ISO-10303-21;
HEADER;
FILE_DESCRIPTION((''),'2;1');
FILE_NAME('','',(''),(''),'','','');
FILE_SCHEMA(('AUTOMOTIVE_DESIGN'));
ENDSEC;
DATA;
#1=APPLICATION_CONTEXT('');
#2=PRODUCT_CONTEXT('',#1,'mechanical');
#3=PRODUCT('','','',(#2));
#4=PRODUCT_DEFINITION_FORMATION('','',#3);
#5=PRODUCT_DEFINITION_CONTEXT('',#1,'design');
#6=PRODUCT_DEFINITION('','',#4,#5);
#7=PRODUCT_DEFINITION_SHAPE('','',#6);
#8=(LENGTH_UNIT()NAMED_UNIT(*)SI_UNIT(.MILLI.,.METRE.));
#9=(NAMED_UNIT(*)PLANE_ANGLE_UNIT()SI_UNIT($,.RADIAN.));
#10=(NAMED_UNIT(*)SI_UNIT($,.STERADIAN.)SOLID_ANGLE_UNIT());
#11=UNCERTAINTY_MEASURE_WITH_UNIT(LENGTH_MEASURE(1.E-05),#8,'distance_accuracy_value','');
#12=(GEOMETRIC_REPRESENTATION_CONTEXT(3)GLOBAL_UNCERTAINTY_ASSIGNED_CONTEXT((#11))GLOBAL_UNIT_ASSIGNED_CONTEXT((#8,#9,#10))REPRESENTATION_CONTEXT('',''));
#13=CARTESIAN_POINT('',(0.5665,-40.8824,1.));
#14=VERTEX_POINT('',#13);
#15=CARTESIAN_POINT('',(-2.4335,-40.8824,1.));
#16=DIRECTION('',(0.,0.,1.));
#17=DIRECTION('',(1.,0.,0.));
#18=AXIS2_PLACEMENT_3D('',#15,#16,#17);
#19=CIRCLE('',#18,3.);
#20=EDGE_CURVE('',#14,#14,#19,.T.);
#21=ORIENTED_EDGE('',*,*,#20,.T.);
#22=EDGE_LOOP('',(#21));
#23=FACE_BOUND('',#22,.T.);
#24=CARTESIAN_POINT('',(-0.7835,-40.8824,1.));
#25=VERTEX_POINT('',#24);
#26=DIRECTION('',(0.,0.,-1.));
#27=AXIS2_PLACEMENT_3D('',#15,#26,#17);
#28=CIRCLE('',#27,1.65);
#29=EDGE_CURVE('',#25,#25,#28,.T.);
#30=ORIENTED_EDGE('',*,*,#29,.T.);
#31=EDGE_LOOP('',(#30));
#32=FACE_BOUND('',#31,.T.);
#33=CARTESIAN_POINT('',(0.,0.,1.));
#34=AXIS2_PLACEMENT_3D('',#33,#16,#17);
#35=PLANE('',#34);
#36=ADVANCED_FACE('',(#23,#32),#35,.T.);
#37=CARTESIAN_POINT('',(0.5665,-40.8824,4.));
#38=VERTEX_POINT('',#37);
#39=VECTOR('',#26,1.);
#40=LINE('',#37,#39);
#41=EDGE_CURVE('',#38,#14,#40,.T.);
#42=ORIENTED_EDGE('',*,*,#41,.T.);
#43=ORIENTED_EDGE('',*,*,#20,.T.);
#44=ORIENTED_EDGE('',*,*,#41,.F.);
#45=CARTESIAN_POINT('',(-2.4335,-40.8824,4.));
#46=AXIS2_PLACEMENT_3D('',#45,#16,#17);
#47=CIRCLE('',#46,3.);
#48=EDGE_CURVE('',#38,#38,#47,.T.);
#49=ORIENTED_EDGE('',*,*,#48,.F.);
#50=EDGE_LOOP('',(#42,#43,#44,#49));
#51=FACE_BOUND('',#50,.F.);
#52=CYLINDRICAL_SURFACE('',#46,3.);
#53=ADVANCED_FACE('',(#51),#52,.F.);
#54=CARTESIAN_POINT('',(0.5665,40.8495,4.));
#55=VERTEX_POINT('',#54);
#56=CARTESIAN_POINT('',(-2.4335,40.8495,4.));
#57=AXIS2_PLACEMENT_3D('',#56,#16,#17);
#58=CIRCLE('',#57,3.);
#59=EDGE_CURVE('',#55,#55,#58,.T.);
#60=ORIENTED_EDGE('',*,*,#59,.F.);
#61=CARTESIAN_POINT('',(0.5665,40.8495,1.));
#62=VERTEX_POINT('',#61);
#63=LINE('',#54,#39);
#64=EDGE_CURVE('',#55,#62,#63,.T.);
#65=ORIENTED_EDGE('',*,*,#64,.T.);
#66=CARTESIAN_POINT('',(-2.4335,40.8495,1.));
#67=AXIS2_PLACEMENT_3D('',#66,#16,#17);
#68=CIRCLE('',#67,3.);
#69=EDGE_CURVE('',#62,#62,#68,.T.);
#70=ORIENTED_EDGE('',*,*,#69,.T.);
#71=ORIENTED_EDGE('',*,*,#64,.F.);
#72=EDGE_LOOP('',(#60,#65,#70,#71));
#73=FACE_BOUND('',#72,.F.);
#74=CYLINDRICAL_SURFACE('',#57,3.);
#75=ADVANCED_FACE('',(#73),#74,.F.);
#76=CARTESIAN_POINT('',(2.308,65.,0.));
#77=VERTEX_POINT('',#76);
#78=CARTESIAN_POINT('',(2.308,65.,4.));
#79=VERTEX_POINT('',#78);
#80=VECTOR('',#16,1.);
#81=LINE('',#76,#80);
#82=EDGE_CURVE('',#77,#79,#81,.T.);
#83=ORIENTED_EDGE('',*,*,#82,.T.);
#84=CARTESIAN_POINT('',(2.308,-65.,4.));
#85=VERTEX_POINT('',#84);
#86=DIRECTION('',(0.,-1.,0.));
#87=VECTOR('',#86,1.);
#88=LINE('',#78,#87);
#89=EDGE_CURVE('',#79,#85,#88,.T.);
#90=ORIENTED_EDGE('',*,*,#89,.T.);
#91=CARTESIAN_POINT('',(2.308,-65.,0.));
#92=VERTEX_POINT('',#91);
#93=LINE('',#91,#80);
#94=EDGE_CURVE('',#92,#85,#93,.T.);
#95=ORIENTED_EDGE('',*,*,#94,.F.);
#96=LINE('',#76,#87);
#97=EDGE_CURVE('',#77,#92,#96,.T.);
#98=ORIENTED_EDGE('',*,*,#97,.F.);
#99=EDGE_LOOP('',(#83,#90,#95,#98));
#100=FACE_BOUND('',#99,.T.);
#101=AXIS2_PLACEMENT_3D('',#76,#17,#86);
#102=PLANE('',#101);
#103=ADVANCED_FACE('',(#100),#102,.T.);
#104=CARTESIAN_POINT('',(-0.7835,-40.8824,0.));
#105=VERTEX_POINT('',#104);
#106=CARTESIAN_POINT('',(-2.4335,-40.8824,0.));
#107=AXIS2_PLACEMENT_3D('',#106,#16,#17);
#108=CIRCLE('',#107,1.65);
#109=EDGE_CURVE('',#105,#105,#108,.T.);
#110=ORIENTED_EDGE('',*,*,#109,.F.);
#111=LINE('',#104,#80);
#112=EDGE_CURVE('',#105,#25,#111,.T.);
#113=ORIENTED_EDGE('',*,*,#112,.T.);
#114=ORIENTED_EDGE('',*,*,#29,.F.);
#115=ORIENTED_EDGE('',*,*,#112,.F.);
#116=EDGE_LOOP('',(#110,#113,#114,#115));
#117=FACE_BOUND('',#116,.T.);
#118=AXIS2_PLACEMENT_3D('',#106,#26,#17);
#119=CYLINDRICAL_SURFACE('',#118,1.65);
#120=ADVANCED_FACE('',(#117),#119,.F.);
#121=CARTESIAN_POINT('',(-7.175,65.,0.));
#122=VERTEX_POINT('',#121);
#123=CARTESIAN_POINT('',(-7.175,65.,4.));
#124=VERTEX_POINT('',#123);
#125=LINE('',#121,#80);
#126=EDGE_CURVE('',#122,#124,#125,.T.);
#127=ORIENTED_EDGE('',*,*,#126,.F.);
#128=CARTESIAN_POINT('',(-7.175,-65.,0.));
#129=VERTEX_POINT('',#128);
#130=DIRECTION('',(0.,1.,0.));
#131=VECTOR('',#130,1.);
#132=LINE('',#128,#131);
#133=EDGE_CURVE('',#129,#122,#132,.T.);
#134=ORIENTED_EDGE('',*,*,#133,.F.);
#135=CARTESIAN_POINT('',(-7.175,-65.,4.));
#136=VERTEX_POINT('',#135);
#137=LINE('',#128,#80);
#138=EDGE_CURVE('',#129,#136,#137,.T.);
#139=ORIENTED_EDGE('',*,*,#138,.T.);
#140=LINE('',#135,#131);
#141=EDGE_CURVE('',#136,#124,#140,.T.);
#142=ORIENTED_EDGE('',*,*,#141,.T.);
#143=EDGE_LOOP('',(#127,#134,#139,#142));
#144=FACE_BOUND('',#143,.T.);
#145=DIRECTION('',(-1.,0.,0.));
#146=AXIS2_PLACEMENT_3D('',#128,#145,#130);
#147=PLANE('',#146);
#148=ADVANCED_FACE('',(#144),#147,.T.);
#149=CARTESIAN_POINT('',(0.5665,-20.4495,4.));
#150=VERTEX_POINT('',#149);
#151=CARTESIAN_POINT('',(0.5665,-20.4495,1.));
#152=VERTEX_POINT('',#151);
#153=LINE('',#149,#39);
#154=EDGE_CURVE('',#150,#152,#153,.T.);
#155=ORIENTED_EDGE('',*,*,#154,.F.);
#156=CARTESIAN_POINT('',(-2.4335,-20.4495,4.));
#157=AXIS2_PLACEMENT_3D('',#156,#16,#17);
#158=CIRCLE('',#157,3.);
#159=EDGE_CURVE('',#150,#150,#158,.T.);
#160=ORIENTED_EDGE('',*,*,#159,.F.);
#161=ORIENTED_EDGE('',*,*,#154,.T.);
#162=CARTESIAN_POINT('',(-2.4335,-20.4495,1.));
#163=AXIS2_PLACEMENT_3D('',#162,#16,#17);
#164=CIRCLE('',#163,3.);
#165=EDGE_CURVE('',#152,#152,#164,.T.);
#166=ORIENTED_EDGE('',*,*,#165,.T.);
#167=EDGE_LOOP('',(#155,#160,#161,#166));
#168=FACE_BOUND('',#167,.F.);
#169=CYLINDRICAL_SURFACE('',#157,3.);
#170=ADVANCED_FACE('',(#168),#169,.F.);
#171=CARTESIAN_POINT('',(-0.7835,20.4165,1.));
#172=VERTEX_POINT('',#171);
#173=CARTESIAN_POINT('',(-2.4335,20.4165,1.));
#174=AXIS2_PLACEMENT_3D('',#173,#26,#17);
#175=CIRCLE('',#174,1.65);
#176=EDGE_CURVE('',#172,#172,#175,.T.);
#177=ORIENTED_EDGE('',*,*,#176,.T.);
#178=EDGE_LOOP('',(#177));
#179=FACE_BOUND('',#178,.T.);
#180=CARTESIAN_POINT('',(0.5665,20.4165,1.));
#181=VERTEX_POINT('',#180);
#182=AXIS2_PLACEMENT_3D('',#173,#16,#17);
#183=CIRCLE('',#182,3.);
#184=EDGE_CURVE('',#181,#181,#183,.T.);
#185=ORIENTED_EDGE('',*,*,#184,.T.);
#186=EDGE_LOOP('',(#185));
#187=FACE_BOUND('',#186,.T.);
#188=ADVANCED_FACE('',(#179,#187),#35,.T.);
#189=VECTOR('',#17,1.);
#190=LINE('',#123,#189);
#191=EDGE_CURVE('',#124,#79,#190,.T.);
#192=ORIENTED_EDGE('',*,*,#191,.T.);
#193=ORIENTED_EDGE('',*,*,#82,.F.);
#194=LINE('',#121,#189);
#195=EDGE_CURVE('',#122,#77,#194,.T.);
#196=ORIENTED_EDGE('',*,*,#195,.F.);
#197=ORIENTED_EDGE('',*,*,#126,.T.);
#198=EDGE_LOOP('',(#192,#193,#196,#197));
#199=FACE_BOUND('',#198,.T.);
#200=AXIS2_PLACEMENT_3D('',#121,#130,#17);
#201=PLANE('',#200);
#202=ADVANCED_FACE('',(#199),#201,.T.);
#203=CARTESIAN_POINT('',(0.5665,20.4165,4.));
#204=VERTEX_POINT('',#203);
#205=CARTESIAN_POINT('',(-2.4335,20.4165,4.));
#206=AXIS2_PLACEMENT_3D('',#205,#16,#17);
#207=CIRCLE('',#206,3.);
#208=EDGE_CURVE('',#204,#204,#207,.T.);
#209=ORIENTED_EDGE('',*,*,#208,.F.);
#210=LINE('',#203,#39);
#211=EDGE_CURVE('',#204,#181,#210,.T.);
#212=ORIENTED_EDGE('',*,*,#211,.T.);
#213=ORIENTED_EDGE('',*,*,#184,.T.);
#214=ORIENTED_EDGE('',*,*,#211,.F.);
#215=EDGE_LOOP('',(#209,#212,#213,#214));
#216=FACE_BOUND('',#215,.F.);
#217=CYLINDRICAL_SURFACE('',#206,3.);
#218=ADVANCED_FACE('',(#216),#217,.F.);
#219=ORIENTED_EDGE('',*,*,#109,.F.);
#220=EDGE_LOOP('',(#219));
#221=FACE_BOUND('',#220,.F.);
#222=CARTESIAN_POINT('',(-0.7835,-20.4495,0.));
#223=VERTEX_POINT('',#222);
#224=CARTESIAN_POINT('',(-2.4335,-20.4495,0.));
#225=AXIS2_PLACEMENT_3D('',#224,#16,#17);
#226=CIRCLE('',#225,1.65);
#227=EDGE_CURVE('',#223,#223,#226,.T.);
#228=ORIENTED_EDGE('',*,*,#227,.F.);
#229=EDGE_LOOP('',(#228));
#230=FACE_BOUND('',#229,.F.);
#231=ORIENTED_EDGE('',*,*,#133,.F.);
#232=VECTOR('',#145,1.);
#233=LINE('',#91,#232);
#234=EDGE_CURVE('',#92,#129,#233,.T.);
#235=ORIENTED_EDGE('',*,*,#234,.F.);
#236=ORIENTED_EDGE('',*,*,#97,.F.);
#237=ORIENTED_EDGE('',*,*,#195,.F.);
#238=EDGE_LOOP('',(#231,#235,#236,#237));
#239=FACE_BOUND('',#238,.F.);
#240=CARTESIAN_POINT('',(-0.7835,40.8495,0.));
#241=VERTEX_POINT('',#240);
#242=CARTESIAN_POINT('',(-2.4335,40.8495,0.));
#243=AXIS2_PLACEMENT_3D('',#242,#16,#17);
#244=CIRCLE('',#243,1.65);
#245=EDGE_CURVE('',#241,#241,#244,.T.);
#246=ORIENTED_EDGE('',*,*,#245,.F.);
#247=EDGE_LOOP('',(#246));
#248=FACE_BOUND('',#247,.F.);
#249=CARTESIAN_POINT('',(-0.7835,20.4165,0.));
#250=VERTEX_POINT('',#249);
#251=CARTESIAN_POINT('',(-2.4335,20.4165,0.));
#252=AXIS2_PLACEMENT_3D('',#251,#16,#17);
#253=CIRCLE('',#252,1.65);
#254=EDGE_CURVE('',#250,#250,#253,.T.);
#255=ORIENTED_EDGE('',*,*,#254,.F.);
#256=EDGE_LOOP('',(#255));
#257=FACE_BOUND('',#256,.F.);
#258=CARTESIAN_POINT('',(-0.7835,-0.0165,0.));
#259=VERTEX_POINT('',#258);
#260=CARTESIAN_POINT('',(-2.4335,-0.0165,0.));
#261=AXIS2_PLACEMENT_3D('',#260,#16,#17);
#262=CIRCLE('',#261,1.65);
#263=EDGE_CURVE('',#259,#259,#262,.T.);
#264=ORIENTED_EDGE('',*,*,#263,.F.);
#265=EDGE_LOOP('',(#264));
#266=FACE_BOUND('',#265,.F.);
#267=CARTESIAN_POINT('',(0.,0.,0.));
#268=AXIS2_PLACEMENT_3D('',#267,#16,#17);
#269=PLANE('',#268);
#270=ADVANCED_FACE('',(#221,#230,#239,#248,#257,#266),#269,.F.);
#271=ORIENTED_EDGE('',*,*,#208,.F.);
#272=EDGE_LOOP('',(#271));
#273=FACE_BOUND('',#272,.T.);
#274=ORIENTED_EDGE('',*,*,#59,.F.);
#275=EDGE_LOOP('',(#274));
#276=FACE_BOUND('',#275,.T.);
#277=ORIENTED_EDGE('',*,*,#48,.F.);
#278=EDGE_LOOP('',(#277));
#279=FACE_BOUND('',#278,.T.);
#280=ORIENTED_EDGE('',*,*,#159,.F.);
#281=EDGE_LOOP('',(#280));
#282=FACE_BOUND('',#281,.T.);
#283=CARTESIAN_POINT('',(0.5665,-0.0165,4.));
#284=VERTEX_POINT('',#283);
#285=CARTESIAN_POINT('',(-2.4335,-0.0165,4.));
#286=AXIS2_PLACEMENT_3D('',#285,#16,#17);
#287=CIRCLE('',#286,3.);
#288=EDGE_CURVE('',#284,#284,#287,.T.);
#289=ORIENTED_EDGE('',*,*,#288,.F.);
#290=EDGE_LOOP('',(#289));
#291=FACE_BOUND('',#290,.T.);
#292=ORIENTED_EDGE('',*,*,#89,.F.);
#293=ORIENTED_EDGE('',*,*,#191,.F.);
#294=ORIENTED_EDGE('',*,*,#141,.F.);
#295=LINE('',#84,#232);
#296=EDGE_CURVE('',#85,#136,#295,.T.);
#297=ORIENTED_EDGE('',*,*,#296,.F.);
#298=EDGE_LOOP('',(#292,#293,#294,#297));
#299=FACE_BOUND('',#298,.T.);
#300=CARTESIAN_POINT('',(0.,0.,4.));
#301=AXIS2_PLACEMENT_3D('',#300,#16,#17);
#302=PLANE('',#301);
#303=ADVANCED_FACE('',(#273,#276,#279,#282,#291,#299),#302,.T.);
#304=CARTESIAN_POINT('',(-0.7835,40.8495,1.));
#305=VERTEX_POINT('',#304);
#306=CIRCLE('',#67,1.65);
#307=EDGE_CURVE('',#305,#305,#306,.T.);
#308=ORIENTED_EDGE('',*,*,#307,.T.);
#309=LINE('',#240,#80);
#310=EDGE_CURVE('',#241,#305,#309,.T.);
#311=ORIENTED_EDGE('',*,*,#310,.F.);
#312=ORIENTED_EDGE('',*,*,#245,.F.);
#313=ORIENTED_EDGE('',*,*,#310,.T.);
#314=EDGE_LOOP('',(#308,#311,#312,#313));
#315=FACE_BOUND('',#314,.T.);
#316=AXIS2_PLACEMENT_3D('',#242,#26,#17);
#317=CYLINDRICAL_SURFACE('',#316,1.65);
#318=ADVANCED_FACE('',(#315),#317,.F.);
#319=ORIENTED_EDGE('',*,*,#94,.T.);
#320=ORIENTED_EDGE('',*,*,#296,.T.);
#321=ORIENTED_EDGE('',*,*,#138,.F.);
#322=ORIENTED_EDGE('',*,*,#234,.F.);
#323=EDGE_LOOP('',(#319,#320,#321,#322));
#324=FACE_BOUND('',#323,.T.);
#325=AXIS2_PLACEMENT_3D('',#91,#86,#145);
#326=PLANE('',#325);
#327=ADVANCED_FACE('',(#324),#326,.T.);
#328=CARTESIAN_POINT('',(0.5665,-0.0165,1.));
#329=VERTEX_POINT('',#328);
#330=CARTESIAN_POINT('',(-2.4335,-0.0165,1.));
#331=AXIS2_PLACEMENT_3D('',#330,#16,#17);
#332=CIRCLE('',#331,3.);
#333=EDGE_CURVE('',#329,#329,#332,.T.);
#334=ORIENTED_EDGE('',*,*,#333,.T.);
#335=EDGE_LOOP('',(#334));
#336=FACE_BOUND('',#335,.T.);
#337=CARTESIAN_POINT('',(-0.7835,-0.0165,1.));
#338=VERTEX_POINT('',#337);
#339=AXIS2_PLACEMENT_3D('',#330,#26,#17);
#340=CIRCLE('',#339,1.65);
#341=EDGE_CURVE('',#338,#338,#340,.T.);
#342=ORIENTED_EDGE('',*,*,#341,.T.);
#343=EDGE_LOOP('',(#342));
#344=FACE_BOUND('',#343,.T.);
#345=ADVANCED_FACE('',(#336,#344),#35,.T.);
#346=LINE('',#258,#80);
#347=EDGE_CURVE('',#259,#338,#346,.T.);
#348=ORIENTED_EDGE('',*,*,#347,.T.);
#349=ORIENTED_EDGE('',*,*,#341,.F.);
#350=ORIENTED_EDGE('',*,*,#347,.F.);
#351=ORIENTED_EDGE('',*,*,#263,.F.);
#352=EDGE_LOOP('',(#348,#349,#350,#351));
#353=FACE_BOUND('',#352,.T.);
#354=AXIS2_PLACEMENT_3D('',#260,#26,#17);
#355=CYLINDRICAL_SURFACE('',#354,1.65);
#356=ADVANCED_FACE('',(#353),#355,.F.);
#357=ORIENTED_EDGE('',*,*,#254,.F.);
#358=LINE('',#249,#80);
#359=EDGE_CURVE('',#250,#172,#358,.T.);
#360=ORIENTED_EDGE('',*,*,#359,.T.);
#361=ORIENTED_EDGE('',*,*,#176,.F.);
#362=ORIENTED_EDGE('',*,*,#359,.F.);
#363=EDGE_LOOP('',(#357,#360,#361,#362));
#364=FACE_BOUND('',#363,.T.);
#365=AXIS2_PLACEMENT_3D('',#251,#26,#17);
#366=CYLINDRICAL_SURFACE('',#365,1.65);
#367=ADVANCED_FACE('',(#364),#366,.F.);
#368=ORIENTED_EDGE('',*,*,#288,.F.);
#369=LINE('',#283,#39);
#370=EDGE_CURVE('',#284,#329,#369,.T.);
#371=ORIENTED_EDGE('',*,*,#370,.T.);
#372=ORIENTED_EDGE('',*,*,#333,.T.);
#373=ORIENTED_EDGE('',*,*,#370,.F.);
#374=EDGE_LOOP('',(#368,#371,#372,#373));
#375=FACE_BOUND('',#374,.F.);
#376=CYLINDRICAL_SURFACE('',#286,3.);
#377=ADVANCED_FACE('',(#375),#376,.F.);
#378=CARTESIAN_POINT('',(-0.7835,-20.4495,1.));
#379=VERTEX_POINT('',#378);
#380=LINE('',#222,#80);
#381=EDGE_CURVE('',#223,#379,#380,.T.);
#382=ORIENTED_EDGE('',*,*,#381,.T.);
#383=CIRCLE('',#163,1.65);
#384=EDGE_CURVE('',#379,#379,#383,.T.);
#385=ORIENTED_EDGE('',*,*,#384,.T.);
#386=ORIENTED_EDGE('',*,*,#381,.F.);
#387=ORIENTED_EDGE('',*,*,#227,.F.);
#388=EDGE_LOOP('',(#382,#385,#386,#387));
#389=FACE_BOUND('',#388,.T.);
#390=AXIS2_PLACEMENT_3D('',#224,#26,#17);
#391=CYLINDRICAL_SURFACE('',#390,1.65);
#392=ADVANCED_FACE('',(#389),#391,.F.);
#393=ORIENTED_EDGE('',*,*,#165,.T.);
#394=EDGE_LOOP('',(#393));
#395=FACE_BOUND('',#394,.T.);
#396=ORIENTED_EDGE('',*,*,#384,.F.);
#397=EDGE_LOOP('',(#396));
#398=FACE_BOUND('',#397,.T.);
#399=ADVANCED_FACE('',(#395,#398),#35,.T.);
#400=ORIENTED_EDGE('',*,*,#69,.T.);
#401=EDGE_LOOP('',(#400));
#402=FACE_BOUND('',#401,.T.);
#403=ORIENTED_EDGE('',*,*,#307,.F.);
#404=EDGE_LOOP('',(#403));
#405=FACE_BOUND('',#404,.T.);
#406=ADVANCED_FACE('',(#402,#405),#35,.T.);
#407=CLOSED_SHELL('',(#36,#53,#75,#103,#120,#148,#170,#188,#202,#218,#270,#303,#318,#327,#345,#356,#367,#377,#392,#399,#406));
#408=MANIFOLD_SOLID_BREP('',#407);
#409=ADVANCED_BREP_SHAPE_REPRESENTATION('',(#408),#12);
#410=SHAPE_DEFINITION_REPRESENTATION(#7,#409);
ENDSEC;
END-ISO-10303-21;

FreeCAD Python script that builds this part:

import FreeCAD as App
import Part
import Sketcher
Q = App.Units.Quantity


def add_polygon(sketch, points):
    """Adds a closed chain of lines whose ends are joined by coincident constraints."""
    first, n = sketch.GeometryCount, len(points)
    for a, b in zip(points, points[1:] + points[:1]):
        sketch.addGeometry(Part.LineSegment(App.Vector(*a, 0), App.Vector(*b, 0)), False)
    for i in range(n):
        sketch.addConstraint(Sketcher.Constraint("Coincident", first + i, 2, first + (i + 1) % n, 1))

doc = App.newDocument("Part")
params = doc.addObject("Spreadsheet::Sheet", "Params")
for row, (alias, value) in enumerate([
    ("sketch1_diameter", "3.3 mm"),
    ("sketch1_height", "130 mm"),
    ("pad1_length", "4 mm"),
    ("sketch2_diameter", "6 mm"),
    ("sketch2_diameter2", "3.3 mm"),
    ("pocket1_length", "3 mm"),
], start=1):
    params.set(f"A{row}", alias)
    params.set(f"B{row}", "=" + value)
    params.setAlias(f"B{row}", alias)

body = doc.addObject("PartDesign::Body", "Body")

# Sketch on XY plane
sketch1 = doc.addObject("Sketcher::SketchObject", "Sketch")
body.addObject(sketch1)
sketch1.AttachmentSupport = (doc.XY_Plane, [""])
sketch1.MapMode = "FlatFace"
add_polygon(sketch1, [(2.308, 65), (-7.175, 65), (-7.175, -65), (2.308, -65)])  # lines 0-3
sketch1.addGeometry(Part.Circle(App.Vector(-2.4335, -40.8824, 0), App.Vector(0, 0, 1), 1.65), False)  # 4
sketch1.addGeometry(Part.Circle(App.Vector(-2.4335, -20.4495, 0), App.Vector(0, 0, 1), 1.65), False)  # 5
sketch1.addGeometry(Part.Circle(App.Vector(-2.4335, -0.0165, 0), App.Vector(0, 0, 1), 1.65), False)  # 6
sketch1.addGeometry(Part.Circle(App.Vector(-2.4335, 20.4165, 0), App.Vector(0, 0, 1), 1.65), False)  # 7
sketch1.addGeometry(Part.Circle(App.Vector(-2.4335, 40.8495, 0), App.Vector(0, 0, 1), 1.65), False)  # 8
sketch1.addConstraint([
    Sketcher.Constraint("Horizontal", 0),
    Sketcher.Constraint("Vertical", 1),
    Sketcher.Constraint("Horizontal", 2),
    Sketcher.Constraint("Vertical", 3),
    Sketcher.Constraint("Equal", 4, 5),
    Sketcher.Constraint("Equal", 5, 6),
    Sketcher.Constraint("Equal", 6, 7),
    Sketcher.Constraint("Equal", 7, 8),
    Sketcher.Constraint("Vertical", 4, 3, 5, 3),
    Sketcher.Constraint("Vertical", 5, 3, 6, 3),
    Sketcher.Constraint("Vertical", 6, 3, 7, 3),
    Sketcher.Constraint("Vertical", 7, 3, 8, 3),
    Sketcher.Constraint("Diameter", 4, Q("3.3 mm")),
    Sketcher.Constraint("DistanceY", 1, 2, 1, 1, Q("130 mm")),
    Sketcher.Constraint("DistanceY", -1, 1, 0, 2, Q("65 mm")),
    Sketcher.Constraint("DistanceX", 0, 2, 8, 3, Q("4.7415 mm")),
    Sketcher.Constraint("DistanceX", 4, 3, 2, 2, Q("4.7415 mm")),
    Sketcher.Constraint("DistanceX", 0, 2, -1, 1, Q("7.175 mm")),
    Sketcher.Constraint("DistanceY", 4, 3, 5, 3, Q("20.433 mm")),
    Sketcher.Constraint("DistanceY", 5, 3, 6, 3, Q("20.433 mm")),
    Sketcher.Constraint("DistanceY", 6, 3, 7, 3, Q("20.433 mm")),
    Sketcher.Constraint("DistanceY", 7, 3, 8, 3, Q("20.433 mm")),
    Sketcher.Constraint("DistanceY", 4, 3, -1, 1, Q("40.8824 mm")),
])
sketch1.setExpression("Constraints[16]", "Params.sketch1_diameter")
sketch1.setExpression("Constraints[17]", "Params.sketch1_height")
pad1 = doc.addObject("PartDesign::Pad", "Pad")
body.addObject(pad1)
pad1.Profile = sketch1
pad1.setExpression("Length", "Params.pad1_length")

# Sketch on XY plane
sketch2 = doc.addObject("Sketcher::SketchObject", "Sketch001")
body.addObject(sketch2)
sketch2.AttachmentSupport = (doc.XY_Plane, [""])
sketch2.MapMode = "FlatFace"
sketch2.AttachmentOffset = App.Placement(App.Vector(0, 0, 4), App.Rotation())
sketch2.addGeometry([
    Part.Circle(App.Vector(-2.4335, 40.8495, 0), App.Vector(0, 0, 1), 3),  # 0
    Part.Circle(App.Vector(-2.4335, 40.8495, 0), App.Vector(0, 0, 1), 1.65),  # 1
    Part.Circle(App.Vector(-2.4335, 20.4165, 0), App.Vector(0, 0, 1), 3),  # 2
    Part.Circle(App.Vector(-2.4335, -0.0165, 0), App.Vector(0, 0, 1), 3),  # 3
    Part.Circle(App.Vector(-2.4335, -20.4495, 0), App.Vector(0, 0, 1), 3),  # 4
    Part.Circle(App.Vector(-2.4335, -20.4495, 0), App.Vector(0, 0, 1), 1.65),  # 5
    Part.Circle(App.Vector(-2.4335, -40.8824, 0), App.Vector(0, 0, 1), 3),  # 6
], False)
sketch2.addConstraint([
    Sketcher.Constraint("Coincident", 1, 3, 0, 3),
    Sketcher.Constraint("Coincident", 5, 3, 4, 3),
    Sketcher.Constraint("Equal", 0, 2),
    Sketcher.Constraint("Equal", 2, 3),
    Sketcher.Constraint("Equal", 3, 4),
    Sketcher.Constraint("Equal", 1, 5),
    Sketcher.Constraint("Equal", 4, 6),
    Sketcher.Constraint("Vertical", 1, 3, 2, 3),
    Sketcher.Constraint("Vertical", 2, 3, 3, 3),
    Sketcher.Constraint("Vertical", 3, 3, 4, 3),
    Sketcher.Constraint("Vertical", 5, 3, 6, 3),
    Sketcher.Constraint("Diameter", 0, Q("6 mm")),
    Sketcher.Constraint("Diameter", 1, Q("3.3 mm")),
    Sketcher.Constraint("DistanceY", 2, 3, 0, 3, Q("20.433 mm")),
    Sketcher.Constraint("DistanceY", 3, 3, 2, 3, Q("20.433 mm")),
    Sketcher.Constraint("DistanceY", 4, 3, 3, 3, Q("20.433 mm")),
    Sketcher.Constraint("DistanceY", 6, 3, 4, 3, Q("20.433 mm")),
    Sketcher.Constraint("DistanceX", 0, 3, -1, 1, Q("2.4335 mm")),
    Sketcher.Constraint("DistanceY", -1, 1, 0, 3, Q("40.8495 mm")),
])
sketch2.setExpression("Constraints[11]", "Params.sketch2_diameter")
sketch2.setExpression("Constraints[12]", "Params.sketch2_diameter2")
pocket1 = doc.addObject("PartDesign::Pocket", "Pocket")
body.addObject(pocket1)
pocket1.Profile = sketch2
pocket1.setExpression("Length", "Params.pocket1_length")

doc.recompute()
